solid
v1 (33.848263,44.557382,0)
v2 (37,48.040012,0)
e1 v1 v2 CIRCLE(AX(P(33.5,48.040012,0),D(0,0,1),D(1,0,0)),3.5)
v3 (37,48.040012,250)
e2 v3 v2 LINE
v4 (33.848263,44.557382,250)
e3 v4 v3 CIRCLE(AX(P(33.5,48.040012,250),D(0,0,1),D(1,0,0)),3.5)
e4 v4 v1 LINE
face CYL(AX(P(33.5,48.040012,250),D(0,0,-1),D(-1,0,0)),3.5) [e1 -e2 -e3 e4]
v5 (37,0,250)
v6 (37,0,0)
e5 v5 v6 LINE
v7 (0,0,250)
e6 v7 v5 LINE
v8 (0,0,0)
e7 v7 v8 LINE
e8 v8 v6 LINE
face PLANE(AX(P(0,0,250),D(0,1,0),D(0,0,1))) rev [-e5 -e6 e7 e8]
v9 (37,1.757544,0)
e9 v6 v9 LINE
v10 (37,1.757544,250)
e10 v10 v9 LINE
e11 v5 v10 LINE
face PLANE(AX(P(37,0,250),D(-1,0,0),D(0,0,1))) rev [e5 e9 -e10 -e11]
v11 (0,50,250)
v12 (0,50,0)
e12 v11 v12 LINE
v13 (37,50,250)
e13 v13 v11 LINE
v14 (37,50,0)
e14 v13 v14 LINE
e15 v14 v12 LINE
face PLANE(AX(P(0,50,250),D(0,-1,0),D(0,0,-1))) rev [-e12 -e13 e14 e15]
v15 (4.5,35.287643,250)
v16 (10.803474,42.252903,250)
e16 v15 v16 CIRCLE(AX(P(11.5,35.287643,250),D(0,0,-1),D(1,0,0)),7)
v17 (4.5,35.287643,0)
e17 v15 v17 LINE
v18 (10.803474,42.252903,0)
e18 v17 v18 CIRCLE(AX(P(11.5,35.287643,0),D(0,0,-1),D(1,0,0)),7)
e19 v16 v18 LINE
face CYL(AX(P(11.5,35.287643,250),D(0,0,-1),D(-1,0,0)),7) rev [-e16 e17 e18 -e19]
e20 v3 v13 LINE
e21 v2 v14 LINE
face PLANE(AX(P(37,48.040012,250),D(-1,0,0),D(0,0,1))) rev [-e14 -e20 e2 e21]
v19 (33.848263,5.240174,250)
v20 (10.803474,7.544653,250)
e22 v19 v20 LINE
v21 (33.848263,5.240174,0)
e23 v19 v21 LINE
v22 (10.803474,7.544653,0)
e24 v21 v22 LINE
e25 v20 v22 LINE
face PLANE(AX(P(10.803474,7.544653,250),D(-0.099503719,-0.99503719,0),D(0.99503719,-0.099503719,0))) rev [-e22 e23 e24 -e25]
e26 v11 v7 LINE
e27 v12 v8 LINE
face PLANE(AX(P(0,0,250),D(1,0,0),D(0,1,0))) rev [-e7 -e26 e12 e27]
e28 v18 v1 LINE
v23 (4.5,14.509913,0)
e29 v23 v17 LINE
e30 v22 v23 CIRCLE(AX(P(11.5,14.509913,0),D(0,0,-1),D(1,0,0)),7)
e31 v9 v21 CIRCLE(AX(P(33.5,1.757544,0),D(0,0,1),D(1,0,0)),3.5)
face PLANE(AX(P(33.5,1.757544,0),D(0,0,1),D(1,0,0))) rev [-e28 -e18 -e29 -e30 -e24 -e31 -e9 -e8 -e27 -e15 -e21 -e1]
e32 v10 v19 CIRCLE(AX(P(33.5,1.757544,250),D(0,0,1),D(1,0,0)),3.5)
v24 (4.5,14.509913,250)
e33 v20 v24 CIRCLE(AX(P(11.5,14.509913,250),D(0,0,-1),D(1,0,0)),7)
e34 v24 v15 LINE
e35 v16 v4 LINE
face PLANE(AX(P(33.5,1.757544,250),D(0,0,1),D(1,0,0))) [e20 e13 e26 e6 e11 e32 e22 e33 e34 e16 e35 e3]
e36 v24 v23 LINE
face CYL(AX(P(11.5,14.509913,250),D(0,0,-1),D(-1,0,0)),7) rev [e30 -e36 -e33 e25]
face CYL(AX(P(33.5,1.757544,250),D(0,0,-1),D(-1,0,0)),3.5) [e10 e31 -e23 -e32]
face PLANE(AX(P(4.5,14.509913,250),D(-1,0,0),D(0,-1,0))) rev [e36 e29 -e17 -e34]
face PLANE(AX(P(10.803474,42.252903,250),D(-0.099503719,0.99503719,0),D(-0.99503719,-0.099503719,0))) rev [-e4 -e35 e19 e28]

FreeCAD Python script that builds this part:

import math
import FreeCAD as App
import Part
import Sketcher

V = App.Vector

doc = App.newDocument("Part")
params = doc.addObject("Spreadsheet::Sheet", "Params")
for row, (alias, value) in enumerate([
    ("sketch1_radius", "7 mm"),
    ("sketch1_radius2", "3.5 mm"),
    ("sketch1_width", "37 mm"),
    ("sketch1_height", "50 mm"),
    ("pad1_length", "250 mm"),
], start=1):
    params.set(f"A{row}", alias)
    params.set(f"B{row}", "=" + value)
    params.setAlias(f"B{row}", alias)

body = doc.addObject("PartDesign::Body", "Body")

# Sketch on XY plane
sketch1 = body.newObject("Sketcher::SketchObject", "Sketch")
sketch1.AttachmentSupport = (doc.getObject("XY_Plane"), [""])
sketch1.MapMode = "FlatFace"
sketch1.addGeometry([
    Part.LineSegment(V(0, 50, 0), V(0, 0, 0)),  # 0
    Part.LineSegment(V(0, 0, 0), V(37, 0, 0)),  # 1
    Part.LineSegment(V(37, 0, 0), V(37, 1.8, 0)),  # 2
    Part.ArcOfCircle(Part.Circle(V(33.5, 1.8, 0), V(0, 0, 1), 3.5), math.radians(0), math.radians(84)),  # 3
    Part.LineSegment(V(33.8, 5.2, 0), V(10.8, 7.5, 0)),  # 4
    Part.ArcOfCircle(Part.Circle(V(11.5, 14.5, 0), V(0, 0, 1), 7), math.radians(180), math.radians(264)),  # 5
    Part.LineSegment(V(4.5, 14.5, 0), V(4.5, 35.3, 0)),  # 6
    Part.ArcOfCircle(Part.Circle(V(11.5, 35.3, 0), V(0, 0, 1), 7), math.radians(96), math.radians(180)),  # 7
    Part.LineSegment(V(10.8, 42.3, 0), V(33.8, 44.6, 0)),  # 8
    Part.ArcOfCircle(Part.Circle(V(33.5, 48, 0), V(0, 0, 1), 3.5), math.radians(-84), math.radians(0)),  # 9
    Part.LineSegment(V(37, 48, 0), V(37, 50, 0)),  # 10
    Part.LineSegment(V(37, 50, 0), V(0, 50, 0)),  # 11
], False)
sketch1.addConstraint([
    Sketcher.Constraint("Coincident", 0, 2, 1, 1),
    Sketcher.Constraint("Coincident", 1, 2, 2, 1),
    Sketcher.Constraint("Tangent", 2, 2, 3, 1),
    Sketcher.Constraint("Tangent", 3, 2, 4, 1),
    Sketcher.Constraint("Tangent", 4, 2, 5, 2),
    Sketcher.Constraint("Tangent", 5, 1, 6, 1),
    Sketcher.Constraint("Tangent", 6, 2, 7, 2),
    Sketcher.Constraint("Tangent", 7, 1, 8, 1),
    Sketcher.Constraint("Tangent", 8, 2, 9, 1),
    Sketcher.Constraint("Tangent", 9, 2, 10, 1),
    Sketcher.Constraint("Coincident", 10, 2, 11, 1),
    Sketcher.Constraint("Coincident", 11, 2, 0, 1),
    Sketcher.Constraint("Vertical", 0),
    Sketcher.Constraint("Horizontal", 1),
    Sketcher.Constraint("Vertical", 2),
    Sketcher.Constraint("Vertical", 6),
    Sketcher.Constraint("Vertical", 10),
    Sketcher.Constraint("Horizontal", 11),
    Sketcher.Constraint("Coincident", 0, 2, -1, 1),
    Sketcher.Constraint("Equal", 5, 7),
    Sketcher.Constraint("Equal", 3, 9),
    Sketcher.Constraint("Vertical", 3, 3, 9, 3),
    Sketcher.Constraint("Vertical", 4, 2, 7, 1),
    Sketcher.Constraint("Radius", 5, 7.0),
    Sketcher.Constraint("Radius", 3, 3.5),
    Sketcher.Constraint("DistanceX", 1, 1, 1, 2, 37.0),
    Sketcher.Constraint("DistanceY", 0, 2, 0, 1, 50.0),
    Sketcher.Constraint("DistanceX", 5, 3, 3, 3, 22.0),
    Sketcher.Constraint("DistanceY", 6, 1, 6, 2, 20.77773),
    Sketcher.Constraint("DistanceY", 3, 3, 7, 3, 33.530099),
    Sketcher.Constraint("DistanceY", 2, 1, 2, 2, 1.757544),
])
sketch1.setExpression("Constraints[23]", "Params.sketch1_radius")
sketch1.setExpression("Constraints[24]", "Params.sketch1_radius2")
sketch1.setExpression("Constraints[25]", "Params.sketch1_width")
sketch1.setExpression("Constraints[26]", "Params.sketch1_height")
pad1 = body.newObject("PartDesign::Pad", "Pad")
pad1.Profile = sketch1
pad1.setExpression("Length", "Params.pad1_length")

doc.recompute()
